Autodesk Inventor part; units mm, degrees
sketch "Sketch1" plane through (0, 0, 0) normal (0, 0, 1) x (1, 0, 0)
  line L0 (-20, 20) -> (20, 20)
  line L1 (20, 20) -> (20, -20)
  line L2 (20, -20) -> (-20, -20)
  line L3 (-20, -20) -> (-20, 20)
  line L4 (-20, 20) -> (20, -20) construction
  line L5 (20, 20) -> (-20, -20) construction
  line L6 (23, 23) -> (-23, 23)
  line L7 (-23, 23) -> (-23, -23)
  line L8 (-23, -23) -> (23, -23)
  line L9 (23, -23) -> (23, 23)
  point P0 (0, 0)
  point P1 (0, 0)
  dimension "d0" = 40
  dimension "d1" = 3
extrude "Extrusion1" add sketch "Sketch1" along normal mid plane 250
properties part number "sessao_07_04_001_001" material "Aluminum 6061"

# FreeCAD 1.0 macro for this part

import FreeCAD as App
import Part
import Sketcher


def add_polygon(sketch, points):
    """Adds a closed chain of lines whose ends are joined by coincident constraints."""
    first, n = sketch.GeometryCount, len(points)
    for a, b in zip(points, points[1:] + points[:1]):
        sketch.addGeometry(Part.LineSegment(App.Vector(*a, 0), App.Vector(*b, 0)), False)
    for i in range(n):
        sketch.addConstraint(Sketcher.Constraint("Coincident", first + i, 2, first + (i + 1) % n, 1))

doc = App.newDocument("Part")
body = doc.addObject("PartDesign::Body", "Body")

sketch1 = doc.addObject("Sketcher::SketchObject", "Sketch")
body.addObject(sketch1)
sketch1.AttachmentSupport = (doc.XY_Plane, [""])
sketch1.MapMode = "FlatFace"
add_polygon(sketch1, [(23, -23), (23, 23), (-23, 23), (-23, -23)])
add_polygon(sketch1, [(-20, -20), (-20, 20), (20, 20), (20, -20)])
sketch1.addConstraint([
    Sketcher.Constraint("Vertical", 0),
    Sketcher.Constraint("Horizontal", 1),
    Sketcher.Constraint("Vertical", 2),
    Sketcher.Constraint("Horizontal", 3),
    Sketcher.Constraint("Vertical", 4),
    Sketcher.Constraint("Horizontal", 5),
    Sketcher.Constraint("Vertical", 6),
    Sketcher.Constraint("Horizontal", 7),
    Sketcher.Constraint("Symmetric", 0, 2, 2, 2, -1, 1),
    Sketcher.Constraint("Symmetric", 4, 2, 6, 2, -1, 1),
    Sketcher.Constraint("Equal", 3, 0),
    Sketcher.Constraint("Equal", 7, 4),
    Sketcher.Constraint("DistanceX", 5, 1, 5, 2, 40.0),
    Sketcher.Constraint("DistanceX", 1, 2, 4, 2, 3.0),
])
pad1 = doc.addObject("PartDesign::Pad", "Pad")
body.addObject(pad1)
pad1.Profile = sketch1
pad1.Length = 250
pad1.Midplane = True

doc.recompute()
